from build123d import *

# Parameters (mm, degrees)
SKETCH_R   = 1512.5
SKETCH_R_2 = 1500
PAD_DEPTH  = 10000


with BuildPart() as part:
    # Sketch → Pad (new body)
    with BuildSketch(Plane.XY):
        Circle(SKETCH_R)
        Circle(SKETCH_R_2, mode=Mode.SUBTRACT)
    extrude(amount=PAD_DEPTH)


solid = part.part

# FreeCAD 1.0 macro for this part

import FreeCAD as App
import Part
import Sketcher
from FreeCAD import Vector
Q = App.Units.Quantity

doc = App.newDocument("Part")
params = doc.addObject("Spreadsheet::Sheet", "Params")
for row, (alias, value) in enumerate([
    ("sketch1_diameter", "3025 mm"),
    ("sketch1_diameter2", "3000 mm"),
    ("pad1_length", "10000 mm"),
], start=1):
    params.set(f"A{row}", alias)
    params.set(f"B{row}", "=" + value)
    params.setAlias(f"B{row}", alias)

body = doc.addObject("PartDesign::Body", "Body")

# Sketch on XY plane
sketch1 = body.newObject("Sketcher::SketchObject", "Sketch")
sketch1.AttachmentSupport = (doc.getObject("XY_Plane"), [""])
sketch1.MapMode = "FlatFace"
sketch1.addGeometry([
    Part.Circle(Vector(0, 0, 0), Vector(0, 0, 1), 1512),
    Part.Circle(Vector(0, 0, 0), Vector(0, 0, 1), 1500),
], False)
sketch1.addConstraint([
    Sketcher.Constraint("Coincident", 0, 3, -1, 1),
    Sketcher.Constraint("Coincident", 1, 3, -1, 1),
    Sketcher.Constraint("Diameter", 0, Q("3025 mm")),
    Sketcher.Constraint("Diameter", 1, Q("3000 mm")),
])
sketch1.setExpression("Constraints[2]", "Params.sketch1_diameter")
sketch1.setExpression("Constraints[3]", "Params.sketch1_diameter2")
pad1 = body.newObject("PartDesign::Pad", "Pad")
pad1.Profile = sketch1
pad1.setExpression("Length", "Params.pad1_length")

doc.recompute()
